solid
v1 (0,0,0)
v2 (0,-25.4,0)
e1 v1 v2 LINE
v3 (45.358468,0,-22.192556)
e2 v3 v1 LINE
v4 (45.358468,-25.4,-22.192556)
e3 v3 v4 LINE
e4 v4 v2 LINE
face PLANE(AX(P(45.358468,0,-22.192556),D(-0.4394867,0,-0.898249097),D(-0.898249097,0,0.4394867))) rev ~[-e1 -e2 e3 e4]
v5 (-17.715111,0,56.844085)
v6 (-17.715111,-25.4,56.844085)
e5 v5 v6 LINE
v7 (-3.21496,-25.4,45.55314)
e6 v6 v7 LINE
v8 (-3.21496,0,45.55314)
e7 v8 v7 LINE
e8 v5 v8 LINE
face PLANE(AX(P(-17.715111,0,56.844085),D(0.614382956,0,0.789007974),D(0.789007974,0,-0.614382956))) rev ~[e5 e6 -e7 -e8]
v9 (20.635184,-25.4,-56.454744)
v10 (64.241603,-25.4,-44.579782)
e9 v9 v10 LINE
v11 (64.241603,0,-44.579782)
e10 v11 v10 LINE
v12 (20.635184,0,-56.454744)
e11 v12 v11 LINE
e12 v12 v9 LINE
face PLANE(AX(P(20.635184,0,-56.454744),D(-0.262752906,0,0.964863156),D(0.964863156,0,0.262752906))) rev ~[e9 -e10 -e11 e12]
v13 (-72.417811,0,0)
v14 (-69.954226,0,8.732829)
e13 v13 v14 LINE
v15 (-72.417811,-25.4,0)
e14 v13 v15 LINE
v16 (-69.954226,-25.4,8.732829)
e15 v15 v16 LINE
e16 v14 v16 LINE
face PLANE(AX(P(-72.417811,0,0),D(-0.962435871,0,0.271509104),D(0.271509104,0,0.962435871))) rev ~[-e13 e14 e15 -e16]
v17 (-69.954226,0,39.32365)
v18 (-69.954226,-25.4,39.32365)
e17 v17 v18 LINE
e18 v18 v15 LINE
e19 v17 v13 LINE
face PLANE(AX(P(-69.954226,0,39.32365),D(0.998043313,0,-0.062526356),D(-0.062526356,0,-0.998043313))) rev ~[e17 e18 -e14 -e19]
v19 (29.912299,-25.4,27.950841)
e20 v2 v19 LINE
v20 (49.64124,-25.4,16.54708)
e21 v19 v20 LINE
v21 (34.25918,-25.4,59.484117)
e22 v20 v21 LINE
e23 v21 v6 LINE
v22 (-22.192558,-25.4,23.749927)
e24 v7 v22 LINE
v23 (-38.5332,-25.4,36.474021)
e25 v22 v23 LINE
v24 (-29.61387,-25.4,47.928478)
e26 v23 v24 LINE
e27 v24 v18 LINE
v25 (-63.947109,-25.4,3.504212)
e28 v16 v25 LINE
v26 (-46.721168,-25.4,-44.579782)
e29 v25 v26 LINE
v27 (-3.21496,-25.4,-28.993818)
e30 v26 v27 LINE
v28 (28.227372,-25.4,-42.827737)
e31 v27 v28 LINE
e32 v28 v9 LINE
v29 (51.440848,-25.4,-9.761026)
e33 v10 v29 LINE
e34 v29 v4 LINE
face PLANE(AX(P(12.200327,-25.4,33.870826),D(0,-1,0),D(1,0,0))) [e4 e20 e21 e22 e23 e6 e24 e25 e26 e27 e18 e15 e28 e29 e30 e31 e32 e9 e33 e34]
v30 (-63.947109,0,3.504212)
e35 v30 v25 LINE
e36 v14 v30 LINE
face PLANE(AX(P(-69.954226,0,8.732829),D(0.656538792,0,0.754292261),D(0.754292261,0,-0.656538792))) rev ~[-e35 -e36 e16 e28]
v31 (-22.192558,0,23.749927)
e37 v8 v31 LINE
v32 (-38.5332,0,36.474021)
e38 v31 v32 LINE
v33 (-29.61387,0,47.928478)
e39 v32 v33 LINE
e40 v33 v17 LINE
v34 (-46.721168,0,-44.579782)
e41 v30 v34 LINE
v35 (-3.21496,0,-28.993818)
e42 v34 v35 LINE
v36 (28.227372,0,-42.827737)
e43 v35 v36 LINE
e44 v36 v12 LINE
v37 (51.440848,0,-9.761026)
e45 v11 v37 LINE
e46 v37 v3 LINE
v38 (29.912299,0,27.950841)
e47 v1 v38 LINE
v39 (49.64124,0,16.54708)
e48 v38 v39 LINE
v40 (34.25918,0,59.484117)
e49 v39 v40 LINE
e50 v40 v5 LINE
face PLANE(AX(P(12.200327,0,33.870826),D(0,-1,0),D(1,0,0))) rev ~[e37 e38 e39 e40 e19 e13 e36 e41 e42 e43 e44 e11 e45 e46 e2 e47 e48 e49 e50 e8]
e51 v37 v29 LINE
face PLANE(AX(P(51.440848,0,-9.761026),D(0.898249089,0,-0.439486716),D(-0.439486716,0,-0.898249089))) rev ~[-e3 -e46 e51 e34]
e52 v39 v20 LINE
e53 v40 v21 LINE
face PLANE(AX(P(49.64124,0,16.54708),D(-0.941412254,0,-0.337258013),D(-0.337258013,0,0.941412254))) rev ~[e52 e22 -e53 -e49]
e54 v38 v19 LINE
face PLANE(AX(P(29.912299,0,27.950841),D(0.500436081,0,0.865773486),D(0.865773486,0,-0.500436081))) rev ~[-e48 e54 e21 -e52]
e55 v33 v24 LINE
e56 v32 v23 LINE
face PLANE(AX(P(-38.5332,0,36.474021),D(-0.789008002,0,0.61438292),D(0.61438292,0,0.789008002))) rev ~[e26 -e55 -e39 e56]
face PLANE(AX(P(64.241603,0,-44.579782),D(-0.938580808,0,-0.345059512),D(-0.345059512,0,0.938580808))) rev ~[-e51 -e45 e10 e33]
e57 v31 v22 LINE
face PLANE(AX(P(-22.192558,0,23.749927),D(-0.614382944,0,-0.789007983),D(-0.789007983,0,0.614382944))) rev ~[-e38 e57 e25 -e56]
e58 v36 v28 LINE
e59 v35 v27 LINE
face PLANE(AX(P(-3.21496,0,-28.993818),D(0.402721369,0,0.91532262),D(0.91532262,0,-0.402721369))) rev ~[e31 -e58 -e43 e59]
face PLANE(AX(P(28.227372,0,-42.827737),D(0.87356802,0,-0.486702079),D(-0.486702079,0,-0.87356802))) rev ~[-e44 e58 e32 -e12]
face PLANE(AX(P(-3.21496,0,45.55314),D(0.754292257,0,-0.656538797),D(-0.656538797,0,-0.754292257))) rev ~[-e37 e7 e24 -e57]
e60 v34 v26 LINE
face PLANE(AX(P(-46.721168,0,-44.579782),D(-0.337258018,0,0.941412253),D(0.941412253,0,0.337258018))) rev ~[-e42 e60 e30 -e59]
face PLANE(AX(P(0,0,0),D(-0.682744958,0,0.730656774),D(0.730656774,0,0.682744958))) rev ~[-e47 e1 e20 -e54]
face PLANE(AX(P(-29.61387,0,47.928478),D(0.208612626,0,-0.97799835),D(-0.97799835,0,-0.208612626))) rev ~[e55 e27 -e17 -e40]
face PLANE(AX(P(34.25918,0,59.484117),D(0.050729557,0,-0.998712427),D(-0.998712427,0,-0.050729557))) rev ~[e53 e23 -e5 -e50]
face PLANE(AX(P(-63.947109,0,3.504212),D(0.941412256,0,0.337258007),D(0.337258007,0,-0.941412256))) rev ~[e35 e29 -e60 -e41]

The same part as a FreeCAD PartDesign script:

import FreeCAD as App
import Part
import Sketcher
from FreeCAD import Vector
Q = App.Units.Quantity


def add_polygon(sketch, points):
    """Adds a closed chain of lines whose ends are joined by coincident constraints."""
    first, n = sketch.GeometryCount, len(points)
    for a, b in zip(points, points[1:] + points[:1]):
        sketch.addGeometry(Part.LineSegment(App.Vector(*a, 0), App.Vector(*b, 0)), False)
    for i in range(n):
        sketch.addConstraint(Sketcher.Constraint("Coincident", first + i, 2, first + (i + 1) % n, 1))

doc = App.newDocument("Part")
body = doc.addObject("PartDesign::Body", "Body")

# Sketch on XZ plane
sketch1 = doc.addObject("Sketcher::SketchObject", "Sketch")
body.addObject(sketch1)
sketch1.AttachmentSupport = (doc.XZ_Plane, [""])
sketch1.MapMode = "FlatFace"
add_polygon(sketch1, [(0, 0), (29.912299, 27.950841), (49.64124, 16.54708), (34.25918, 59.484117), (-17.715111, 56.844085), (-3.21496, 45.55314), (-22.192558, 23.749927), (-38.5332, 36.474021), (-29.61387, 47.928478), (-69.954226, 39.32365), (-72.417811, 0), (-69.954226, 8.732829), (-63.947109, 3.504212), (-46.721168, -44.579782), (-3.21496, -28.993818), (28.227372, -42.827737), (20.635184, -56.454744), (64.241603, -44.579782), (51.440848, -9.761026), (45.358468, -22.192556)])  # lines 0-19
sketch1.addConstraint(Sketcher.Constraint("Coincident", 19, 2, -1, 1))
sketch1.addConstraint(Sketcher.Constraint("PointOnObject", 9, 2, -1))
sketch1.addConstraint(Sketcher.Constraint("Parallel", 4, 6))
sketch1.addConstraint(Sketcher.Constraint("Perpendicular", 6, 7))
sketch1.addConstraint(Sketcher.Constraint("Perpendicular", 5, 11))
sketch1.addConstraint(Sketcher.Constraint("Parallel", 2, 12))
sketch1.addConstraint(Sketcher.Constraint("Perpendicular", 12, 13))
sketch1.addConstraint(Sketcher.Constraint("Perpendicular", 18, 19))
sketch1.addConstraint(Sketcher.Constraint("Horizontal", 12, 2, 16, 2))
sketch1.addConstraint(Sketcher.Constraint("Vertical", 8, 2, 10, 2))
sketch1.addConstraint(Sketcher.Constraint("Vertical", 4, 2, 13, 2))
sketch1.addConstraint(Sketcher.Constraint("Distance", 4, Q("18.377699 mm")))
sketch1.addConstraint(Sketcher.Constraint("DistanceX", -1, 1, 0, 2, Q("29.912299 mm")))
sketch1.addConstraint(Sketcher.Constraint("DistanceX", 6, 2, -1, 1, Q("38.5332 mm")))
sketch1.addConstraint(Sketcher.Constraint("DistanceY", 0, 2, 4, 2, Q("17.602299 mm")))
sketch1.addConstraint(Sketcher.Constraint("DistanceX", 4, 2, 1, 2, Q("52.8562 mm")))
sketch1.addConstraint(Sketcher.Constraint("DistanceX", 5, 2, 1, 2, Q("71.833798 mm")))
sketch1.addConstraint(Sketcher.Constraint("DistanceX", 9, 2, 3, 2, Q("54.7027 mm")))
sketch1.addConstraint(Sketcher.Constraint("Distance", 0, Q("40.93892 mm")))
sketch1.addConstraint(Sketcher.Constraint("Distance", 11, Q("7.963912 mm")))
sketch1.addConstraint(Sketcher.Constraint("Distance", 13, Q("46.213769 mm")))
sketch1.addConstraint(Sketcher.Constraint("Distance", 15, Q("15.599251 mm")))
sketch1.addConstraint(Sketcher.Constraint("Distance", 17, Q("37.097238 mm")))
sketch1.addConstraint(Sketcher.Constraint("DistanceX", -1, 1, 1, 2, Q("49.64124 mm")))
sketch1.addConstraint(Sketcher.Constraint("DistanceY", -1, 1, 1, 2, Q("16.54708 mm")))
sketch1.addConstraint(Sketcher.Constraint("DistanceX", -1, 1, 2, 2, Q("34.25918 mm")))
sketch1.addConstraint(Sketcher.Constraint("DistanceX", 3, 2, -1, 1, Q("17.715111 mm")))
sketch1.addConstraint(Sketcher.Constraint("DistanceY", -1, 1, 6, 2, Q("36.474021 mm")))
sketch1.addConstraint(Sketcher.Constraint("DistanceX", 7, 2, -1, 1, Q("29.61387 mm")))
sketch1.addConstraint(Sketcher.Constraint("DistanceY", -1, 1, 8, 2, Q("39.32365 mm")))
sketch1.addConstraint(Sketcher.Constraint("DistanceY", -1, 1, 10, 2, Q("8.732829 mm")))
sketch1.addConstraint(Sketcher.Constraint("DistanceX", 11, 2, -1, 1, Q("63.947109 mm")))
sketch1.addConstraint(Sketcher.Constraint("DistanceY", 13, 2, -1, 1, Q("28.993818 mm")))
sketch1.addConstraint(Sketcher.Constraint("DistanceX", -1, 1, 14, 2, Q("28.227372 mm")))
sketch1.addConstraint(Sketcher.Constraint("DistanceX", -1, 1, 17, 2, Q("51.440848 mm")))
sketch1.addConstraint(Sketcher.Constraint("DistanceX", -1, 1, 18, 2, Q("45.358468 mm")))
sketch1.addConstraint(Sketcher.Constraint("DistanceY", 14, 2, 13, 2, Q("13.833919 mm")))
sketch1.addConstraint(Sketcher.Constraint("DistanceX", 12, 2, 15, 2, Q("67.356352 mm")))
sketch1.addConstraint(Sketcher.Constraint("DistanceX", 14, 2, 16, 2, Q("36.014231 mm")))
pad1 = doc.addObject("PartDesign::Pad", "Pad")
body.addObject(pad1)
pad1.Profile = sketch1
pad1.Length = Q("1 in")

doc.recompute()
